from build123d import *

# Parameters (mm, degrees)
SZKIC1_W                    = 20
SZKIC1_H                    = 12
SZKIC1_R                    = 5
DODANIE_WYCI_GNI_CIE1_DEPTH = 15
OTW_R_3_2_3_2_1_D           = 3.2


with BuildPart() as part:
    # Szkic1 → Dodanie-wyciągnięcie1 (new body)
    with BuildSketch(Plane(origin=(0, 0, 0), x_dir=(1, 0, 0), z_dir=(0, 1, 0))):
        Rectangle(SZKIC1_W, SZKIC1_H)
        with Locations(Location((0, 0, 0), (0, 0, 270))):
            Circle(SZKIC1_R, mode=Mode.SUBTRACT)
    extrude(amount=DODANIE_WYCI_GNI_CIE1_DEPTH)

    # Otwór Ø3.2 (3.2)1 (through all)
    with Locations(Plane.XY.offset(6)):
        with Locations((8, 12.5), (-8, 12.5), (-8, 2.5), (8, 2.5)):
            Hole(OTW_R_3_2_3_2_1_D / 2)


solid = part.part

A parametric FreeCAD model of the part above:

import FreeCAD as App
import Part
import Sketcher

V = App.Vector
Q = App.Units.Quantity


def add_polygon(sketch, points):
    """Adds a closed chain of lines whose ends are joined by coincident constraints."""
    first, n = sketch.GeometryCount, len(points)
    for a, b in zip(points, points[1:] + points[:1]):
        sketch.addGeometry(Part.LineSegment(App.Vector(*a, 0), App.Vector(*b, 0)), False)
    for i in range(n):
        sketch.addConstraint(Sketcher.Constraint("Coincident", first + i, 2, first + (i + 1) % n, 1))

doc = App.newDocument("Part")
params = doc.addObject("Spreadsheet::Sheet", "Params")
for row, (alias, value) in enumerate([
    ("sketch1_diameter", "10 mm"),
    ("sketch1_width", "20 mm"),
    ("sketch1_height", "12 mm"),
    ("pad1_length", "15 mm"),
    ("sketch2_diameter", "3.2 mm"),
    ("hole_diameter", "3.2 mm"),
], start=1):
    params.set(f"A{row}", alias)
    params.set(f"B{row}", "=" + value)
    params.setAlias(f"B{row}", alias)

body = doc.addObject("PartDesign::Body", "Body")

sketch1 = doc.addObject("Sketcher::SketchObject", "Sketch")
body.addObject(sketch1)
sketch1.AttachmentSupport = (doc.XZ_Plane, [""])
sketch1.MapMode = "FlatFace"
add_polygon(sketch1, [(-10, -6), (-10, 6), (10, 6), (10, -6)])
sketch1.addGeometry(Part.Circle(V(0, 0, 0), V(0, 0, 1), 5), False)
sketch1.addConstraint(Sketcher.Constraint("Vertical", 0))
sketch1.addConstraint(Sketcher.Constraint("Horizontal", 1))
sketch1.addConstraint(Sketcher.Constraint("Vertical", 2))
sketch1.addConstraint(Sketcher.Constraint("Horizontal", 3))
sketch1.addConstraint(Sketcher.Constraint("Coincident", 4, 3, -1, 1))
sketch1.addConstraint(Sketcher.Constraint("Symmetric", 0, 2, 2, 2, -1, 1))
sketch1.addConstraint(Sketcher.Constraint("Diameter", 4, Q("10 mm")))
sketch1.addConstraint(Sketcher.Constraint("DistanceX", 1, 1, 1, 2, Q("20 mm")))
sketch1.addConstraint(Sketcher.Constraint("DistanceY", 0, 1, 0, 2, Q("12 mm")))
sketch1.setExpression("Constraints[10]", "Params.sketch1_diameter")
sketch1.setExpression("Constraints[11]", "Params.sketch1_width")
sketch1.setExpression("Constraints[12]", "Params.sketch1_height")
pad1 = doc.addObject("PartDesign::Pad", "Pad")
body.addObject(pad1)
pad1.Profile = sketch1
pad1.setExpression("Length", "Params.pad1_length")
pad1.Reversed = True

sketch2 = doc.addObject("Sketcher::SketchObject", "Sketch001")
body.addObject(sketch2)
sketch2.AttachmentSupport = (doc.XY_Plane, [""])
sketch2.MapMode = "FlatFace"
sketch2.AttachmentOffset = App.Placement(V(0, 0, 6), App.Rotation())
sketch2.addGeometry(Part.Circle(V(8, 12.5, 0), V(0, 0, 1), 1.6), False)
sketch2.addGeometry(Part.Circle(V(-8, 12.5, 0), V(0, 0, 1), 1.6), False)
sketch2.addGeometry(Part.Circle(V(-8, 2.5, 0), V(0, 0, 1), 1.6), False)
sketch2.addGeometry(Part.Circle(V(8, 2.5, 0), V(0, 0, 1), 1.6), False)
sketch2.addConstraint(Sketcher.Constraint("Equal", 0, 1))
sketch2.addConstraint(Sketcher.Constraint("Equal", 1, 2))
sketch2.addConstraint(Sketcher.Constraint("Equal", 2, 3))
sketch2.addConstraint(Sketcher.Constraint("Symmetric", 0, 3, 1, 3, -2))
sketch2.addConstraint(Sketcher.Constraint("Symmetric", 2, 3, 3, 3, -2))
sketch2.addConstraint(Sketcher.Constraint("Vertical", 1, 3, 2, 3))
sketch2.addConstraint(Sketcher.Constraint("Diameter", 0, Q("3.2 mm")))
sketch2.addConstraint(Sketcher.Constraint("DistanceX", -1, 1, 0, 3, Q("8 mm")))
sketch2.addConstraint(Sketcher.Constraint("DistanceY", 2, 3, 1, 3, Q("10 mm")))
sketch2.addConstraint(Sketcher.Constraint("DistanceY", -1, 1, 0, 3, Q("12.5 mm")))
sketch2.setExpression("Constraints[6]", "Params.sketch2_diameter")
doc.recompute()
hole = doc.addObject("PartDesign::Hole", "Hole")
body.addObject(hole)
hole.Profile = sketch2
hole.ThreadType = "None"
hole.setExpression("Diameter", "Params.hole_diameter")
hole.DepthType = "ThroughAll"

doc.recompute()
